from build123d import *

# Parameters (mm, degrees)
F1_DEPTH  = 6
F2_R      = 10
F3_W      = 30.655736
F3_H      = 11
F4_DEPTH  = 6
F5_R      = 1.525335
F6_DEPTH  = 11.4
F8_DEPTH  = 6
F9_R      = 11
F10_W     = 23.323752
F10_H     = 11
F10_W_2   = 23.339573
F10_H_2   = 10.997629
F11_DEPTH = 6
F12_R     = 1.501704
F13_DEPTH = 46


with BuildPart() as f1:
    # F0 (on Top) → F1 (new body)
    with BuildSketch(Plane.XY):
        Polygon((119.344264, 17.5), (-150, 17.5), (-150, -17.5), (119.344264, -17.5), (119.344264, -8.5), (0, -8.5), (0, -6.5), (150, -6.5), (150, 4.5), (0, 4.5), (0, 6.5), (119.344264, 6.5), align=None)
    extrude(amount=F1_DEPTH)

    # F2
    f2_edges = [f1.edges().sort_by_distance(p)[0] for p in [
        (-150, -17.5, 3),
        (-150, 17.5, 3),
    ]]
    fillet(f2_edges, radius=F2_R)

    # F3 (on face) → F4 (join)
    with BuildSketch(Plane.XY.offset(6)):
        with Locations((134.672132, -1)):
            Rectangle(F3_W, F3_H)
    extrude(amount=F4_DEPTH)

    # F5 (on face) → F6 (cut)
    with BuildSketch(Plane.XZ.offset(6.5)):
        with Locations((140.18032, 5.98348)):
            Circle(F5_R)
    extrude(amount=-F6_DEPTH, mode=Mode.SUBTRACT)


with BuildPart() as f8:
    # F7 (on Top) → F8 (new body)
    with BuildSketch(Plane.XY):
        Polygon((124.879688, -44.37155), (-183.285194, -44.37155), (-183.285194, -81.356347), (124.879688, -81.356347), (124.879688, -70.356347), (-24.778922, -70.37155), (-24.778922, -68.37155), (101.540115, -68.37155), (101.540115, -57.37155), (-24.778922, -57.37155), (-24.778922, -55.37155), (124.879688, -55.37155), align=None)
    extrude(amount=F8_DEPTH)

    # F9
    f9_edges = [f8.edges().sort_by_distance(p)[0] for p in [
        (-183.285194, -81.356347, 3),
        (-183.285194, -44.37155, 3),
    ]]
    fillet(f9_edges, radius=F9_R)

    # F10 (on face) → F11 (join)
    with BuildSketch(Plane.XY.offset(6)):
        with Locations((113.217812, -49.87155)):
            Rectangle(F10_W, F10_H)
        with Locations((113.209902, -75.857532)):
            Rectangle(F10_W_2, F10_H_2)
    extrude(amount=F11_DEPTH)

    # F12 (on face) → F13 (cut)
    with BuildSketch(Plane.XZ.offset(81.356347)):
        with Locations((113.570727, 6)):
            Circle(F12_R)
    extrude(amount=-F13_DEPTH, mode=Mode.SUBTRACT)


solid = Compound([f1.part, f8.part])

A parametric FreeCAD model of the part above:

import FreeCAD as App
import Part
import Sketcher


def edges_at(feature, points):
    """Names of the edges that pass closest to the given points."""
    edges = feature.Shape.Edges
    near = lambda p: min(range(len(edges)), key=lambda i: edges[i].distToShape(Part.Vertex(*p))[0])
    return sorted({f"Edge{near(p) + 1}" for p in points})


def add_polygon(sketch, points):
    """Adds a closed chain of lines whose ends are joined by coincident constraints."""
    first, n = sketch.GeometryCount, len(points)
    for a, b in zip(points, points[1:] + points[:1]):
        sketch.addGeometry(Part.LineSegment(App.Vector(*a, 0), App.Vector(*b, 0)), False)
    for i in range(n):
        sketch.addConstraint(Sketcher.Constraint("Coincident", first + i, 2, first + (i + 1) % n, 1))

doc = App.newDocument("Part")
body = doc.addObject("PartDesign::Body", "Body")

# Sketch on XY plane
sketch1 = doc.addObject("Sketcher::SketchObject", "Sketch")
body.addObject(sketch1)
sketch1.AttachmentSupport = (doc.XY_Plane, [""])
sketch1.MapMode = "FlatFace"
add_polygon(sketch1, [(119.344264, 17.5), (-150, 17.5), (-150, -17.5), (119.344264, -17.5), (119.344264, -8.5), (0, -8.5), (0, -6.5), (150, -6.5), (150, 4.5), (0, 4.5), (0, 6.5), (119.344264, 6.5)])  # lines 0-11
sketch1.addConstraint([
    Sketcher.Constraint("Horizontal", 0),
    Sketcher.Constraint("Vertical", 1),
    Sketcher.Constraint("Horizontal", 2),
    Sketcher.Constraint("Vertical", 3),
    Sketcher.Constraint("Horizontal", 4),
    Sketcher.Constraint("Vertical", 5),
    Sketcher.Constraint("Horizontal", 6),
    Sketcher.Constraint("Vertical", 7),
    Sketcher.Constraint("Horizontal", 8),
    Sketcher.Constraint("Vertical", 9),
    Sketcher.Constraint("Horizontal", 10),
    Sketcher.Constraint("Vertical", 11),
    Sketcher.Constraint("Symmetric", 5, 2, 9, 2, -1, 1),
    Sketcher.Constraint("Symmetric", 2, 2, 11, 2, -1),
    Sketcher.Constraint("PointOnObject", 4, 2, -2),
    Sketcher.Constraint("Equal", 5, 9),
    Sketcher.Constraint("Equal", 7, 11),
    Sketcher.Constraint("DistanceX", 6, 1, 6, 2, 150.0),
    Sketcher.Constraint("DistanceY", 1, 2, 1, 1, 35.0),
    Sketcher.Constraint("DistanceY", 3, 1, 3, 2, 9.0),
    Sketcher.Constraint("DistanceX", 0, 2, -1, 1, 150.0),
    Sketcher.Constraint("DistanceX", 0, 2, 0, 1, 269.344264),
])
pad1 = doc.addObject("PartDesign::Pad", "Pad")
body.addObject(pad1)
pad1.Profile = sketch1
pad1.Length = 6
doc.recompute()

fillet = doc.addObject("PartDesign::Fillet", "Fillet")
body.addObject(fillet)
fillet.Base = (pad1, edges_at(pad1, [(-150, -17.5, 3), (-150, 17.5, 3)]))
fillet.Radius = 10

# Sketch on XY plane
sketch2 = doc.addObject("Sketcher::SketchObject", "Sketch001")
body.addObject(sketch2)
sketch2.AttachmentSupport = (doc.XY_Plane, [""])
sketch2.MapMode = "FlatFace"
sketch2.AttachmentOffset = App.Placement(App.Vector(0, 0, 6), App.Rotation())
add_polygon(sketch2, [(119.344264, 4.5), (119.344264, -6.5), (150, -6.5), (150, 4.5)])  # lines 0-3
sketch2.addConstraint([
    Sketcher.Constraint("Vertical", 0),
    Sketcher.Constraint("Horizontal", 1),
    Sketcher.Constraint("Vertical", 2),
    Sketcher.Constraint("Horizontal", 3),
    Sketcher.Constraint("DistanceY", 0, 2, 0, 1, 11.0),
    Sketcher.Constraint("DistanceX", -1, 1, 1, 2, 150.0),
    Sketcher.Constraint("DistanceY", 0, 2, -1, 1, 6.5),
    Sketcher.Constraint("DistanceX", 1, 1, 1, 2, 30.655736),
])
pad2 = doc.addObject("PartDesign::Pad", "Pad001")
body.addObject(pad2)
pad2.Profile = sketch2
pad2.Length = 6

# Sketch on XZ plane
sketch3 = doc.addObject("Sketcher::SketchObject", "Sketch002")
body.addObject(sketch3)
sketch3.AttachmentSupport = (doc.XZ_Plane, [""])
sketch3.MapMode = "FlatFace"
sketch3.AttachmentOffset = App.Placement(App.Vector(0, 0, 6.5), App.Rotation())
sketch3.addGeometry(Part.Circle(App.Vector(140.18032, 5.98348, 0), App.Vector(0, 0, 1), 1.525335), False)
sketch3.addConstraint([
    Sketcher.Constraint("Diameter", 0, 3.05067),
    Sketcher.Constraint("DistanceX", -1, 1, 0, 3, 140.18032),
    Sketcher.Constraint("DistanceY", -1, 1, 0, 3, 5.98348),
])
pocket1 = doc.addObject("PartDesign::Pocket", "Pocket")
body.addObject(pocket1)
pocket1.Profile = sketch3
pocket1.Length = 11.4
body2 = doc.addObject("PartDesign::Body", "Body001")

# Sketch on XY plane
sketch4 = doc.addObject("Sketcher::SketchObject", "Sketch003")
body2.addObject(sketch4)
sketch4.AttachmentSupport = (doc.getObject("XY_Plane001"), [""])
sketch4.MapMode = "FlatFace"
add_polygon(sketch4, [(124.879688, -44.37155), (-183.285194, -44.37155), (-183.285194, -81.356347), (124.879688, -81.356347), (124.879688, -70.356347), (-24.778922, -70.37155), (-24.778922, -68.37155), (101.540115, -68.37155), (101.540115, -57.37155), (-24.778922, -57.37155), (-24.778922, -55.37155), (124.879688, -55.37155)])  # lines 0-11
sketch4.addConstraint([
    Sketcher.Constraint("Horizontal", 0),
    Sketcher.Constraint("Vertical", 1),
    Sketcher.Constraint("Horizontal", 2),
    Sketcher.Constraint("Vertical", 3),
    Sketcher.Constraint("Vertical", 5),
    Sketcher.Constraint("Horizontal", 6),
    Sketcher.Constraint("Vertical", 7),
    Sketcher.Constraint("Horizontal", 8),
    Sketcher.Constraint("Vertical", 9),
    Sketcher.Constraint("Horizontal", 10),
    Sketcher.Constraint("Vertical", 11),
    Sketcher.Constraint("Vertical", 5, 2, 8, 2),
    Sketcher.Constraint("Vertical", 3, 2, 10, 2),
    Sketcher.Constraint("Equal", 3, 7),
    Sketcher.Constraint("Equal", 5, 9),
    Sketcher.Constraint("Equal", 7, 11),
    Sketcher.Constraint("DistanceY", 3, 1, 3, 2, 11.0),
    Sketcher.Constraint("DistanceY", 5, 1, 5, 2, 2.0),
    Sketcher.Constraint("DistanceX", 0, 2, 0, 1, 308.164882),
    Sketcher.Constraint("DistanceX", 10, 1, 10, 2, 149.65861),
    Sketcher.Constraint("DistanceX", 6, 1, 6, 2, 126.319037),
    Sketcher.Constraint("DistanceY", 1, 2, 1, 1, 36.984797),
    Sketcher.Constraint("DistanceY", 0, 2, -1, 1, 44.37155),
    Sketcher.Constraint("DistanceX", -1, 1, 2, 2, 124.879688),
])
pad3 = doc.addObject("PartDesign::Pad", "Pad002")
body2.addObject(pad3)
pad3.Profile = sketch4
pad3.Length = 6
doc.recompute()

fillet2 = doc.addObject("PartDesign::Fillet", "Fillet001")
body2.addObject(fillet2)
fillet2.Base = (pad3, edges_at(pad3, [(-183.285, -81.356, 3), (-183.285, -44.372, 3)]))
fillet2.Radius = 11

# Sketch on XY plane
sketch5 = doc.addObject("Sketcher::SketchObject", "Sketch004")
body2.addObject(sketch5)
sketch5.AttachmentSupport = (doc.getObject("XY_Plane001"), [""])
sketch5.MapMode = "FlatFace"
sketch5.AttachmentOffset = App.Placement(App.Vector(0, 0, 6), App.Rotation())
add_polygon(sketch5, [(101.555936, -44.37155), (101.555936, -55.37155), (124.879688, -55.37155), (124.879688, -44.37155)])  # lines 0-3
add_polygon(sketch5, [(101.540115, -70.358717), (101.540115, -81.356347), (124.879689, -81.356347), (124.879689, -70.358717)])  # lines 4-7
sketch5.addConstraint([
    Sketcher.Constraint("Vertical", 0),
    Sketcher.Constraint("Horizontal", 1),
    Sketcher.Constraint("Vertical", 2),
    Sketcher.Constraint("Horizontal", 3),
    Sketcher.Constraint("Vertical", 4),
    Sketcher.Constraint("Horizontal", 5),
    Sketcher.Constraint("Vertical", 6),
    Sketcher.Constraint("Horizontal", 7),
    Sketcher.Constraint("Vertical", 2, 2, 5, 2),
    Sketcher.Constraint("DistanceY", 0, 2, 0, 1, 11.0),
    Sketcher.Constraint("DistanceX", 1, 1, 1, 2, 23.323752),
    Sketcher.Constraint("DistanceY", 4, 2, 4, 1, 10.997629),
    Sketcher.Constraint("DistanceX", 5, 1, 5, 2, 23.339573),
    Sketcher.Constraint("DistanceY", 0, 2, -1, 1, 55.37155),
    Sketcher.Constraint("DistanceX", -1, 1, 1, 2, 124.879688),
    Sketcher.Constraint("DistanceY", 4, 2, -1, 1, 81.356347),
])
pad4 = doc.addObject("PartDesign::Pad", "Pad003")
body2.addObject(pad4)
pad4.Profile = sketch5
pad4.Length = 6

# Sketch on XZ plane
sketch6 = doc.addObject("Sketcher::SketchObject", "Sketch005")
body2.addObject(sketch6)
sketch6.AttachmentSupport = (doc.getObject("XZ_Plane001"), [""])
sketch6.MapMode = "FlatFace"
sketch6.AttachmentOffset = App.Placement(App.Vector(0, 0, 81.356347), App.Rotation())
sketch6.addGeometry(Part.Circle(App.Vector(113.570727, 6, 0), App.Vector(0, 0, 1), 1.501704), False)
sketch6.addConstraint([
    Sketcher.Constraint("DistanceY", -1, 1, 0, 3, 6.0),
    Sketcher.Constraint("Diameter", 0, 3.003408),
    Sketcher.Constraint("DistanceX", -1, 1, 0, 3, 113.570727),
])
pocket2 = doc.addObject("PartDesign::Pocket", "Pocket001")
body2.addObject(pocket2)
pocket2.Profile = sketch6
pocket2.Length = 46

doc.recompute()
